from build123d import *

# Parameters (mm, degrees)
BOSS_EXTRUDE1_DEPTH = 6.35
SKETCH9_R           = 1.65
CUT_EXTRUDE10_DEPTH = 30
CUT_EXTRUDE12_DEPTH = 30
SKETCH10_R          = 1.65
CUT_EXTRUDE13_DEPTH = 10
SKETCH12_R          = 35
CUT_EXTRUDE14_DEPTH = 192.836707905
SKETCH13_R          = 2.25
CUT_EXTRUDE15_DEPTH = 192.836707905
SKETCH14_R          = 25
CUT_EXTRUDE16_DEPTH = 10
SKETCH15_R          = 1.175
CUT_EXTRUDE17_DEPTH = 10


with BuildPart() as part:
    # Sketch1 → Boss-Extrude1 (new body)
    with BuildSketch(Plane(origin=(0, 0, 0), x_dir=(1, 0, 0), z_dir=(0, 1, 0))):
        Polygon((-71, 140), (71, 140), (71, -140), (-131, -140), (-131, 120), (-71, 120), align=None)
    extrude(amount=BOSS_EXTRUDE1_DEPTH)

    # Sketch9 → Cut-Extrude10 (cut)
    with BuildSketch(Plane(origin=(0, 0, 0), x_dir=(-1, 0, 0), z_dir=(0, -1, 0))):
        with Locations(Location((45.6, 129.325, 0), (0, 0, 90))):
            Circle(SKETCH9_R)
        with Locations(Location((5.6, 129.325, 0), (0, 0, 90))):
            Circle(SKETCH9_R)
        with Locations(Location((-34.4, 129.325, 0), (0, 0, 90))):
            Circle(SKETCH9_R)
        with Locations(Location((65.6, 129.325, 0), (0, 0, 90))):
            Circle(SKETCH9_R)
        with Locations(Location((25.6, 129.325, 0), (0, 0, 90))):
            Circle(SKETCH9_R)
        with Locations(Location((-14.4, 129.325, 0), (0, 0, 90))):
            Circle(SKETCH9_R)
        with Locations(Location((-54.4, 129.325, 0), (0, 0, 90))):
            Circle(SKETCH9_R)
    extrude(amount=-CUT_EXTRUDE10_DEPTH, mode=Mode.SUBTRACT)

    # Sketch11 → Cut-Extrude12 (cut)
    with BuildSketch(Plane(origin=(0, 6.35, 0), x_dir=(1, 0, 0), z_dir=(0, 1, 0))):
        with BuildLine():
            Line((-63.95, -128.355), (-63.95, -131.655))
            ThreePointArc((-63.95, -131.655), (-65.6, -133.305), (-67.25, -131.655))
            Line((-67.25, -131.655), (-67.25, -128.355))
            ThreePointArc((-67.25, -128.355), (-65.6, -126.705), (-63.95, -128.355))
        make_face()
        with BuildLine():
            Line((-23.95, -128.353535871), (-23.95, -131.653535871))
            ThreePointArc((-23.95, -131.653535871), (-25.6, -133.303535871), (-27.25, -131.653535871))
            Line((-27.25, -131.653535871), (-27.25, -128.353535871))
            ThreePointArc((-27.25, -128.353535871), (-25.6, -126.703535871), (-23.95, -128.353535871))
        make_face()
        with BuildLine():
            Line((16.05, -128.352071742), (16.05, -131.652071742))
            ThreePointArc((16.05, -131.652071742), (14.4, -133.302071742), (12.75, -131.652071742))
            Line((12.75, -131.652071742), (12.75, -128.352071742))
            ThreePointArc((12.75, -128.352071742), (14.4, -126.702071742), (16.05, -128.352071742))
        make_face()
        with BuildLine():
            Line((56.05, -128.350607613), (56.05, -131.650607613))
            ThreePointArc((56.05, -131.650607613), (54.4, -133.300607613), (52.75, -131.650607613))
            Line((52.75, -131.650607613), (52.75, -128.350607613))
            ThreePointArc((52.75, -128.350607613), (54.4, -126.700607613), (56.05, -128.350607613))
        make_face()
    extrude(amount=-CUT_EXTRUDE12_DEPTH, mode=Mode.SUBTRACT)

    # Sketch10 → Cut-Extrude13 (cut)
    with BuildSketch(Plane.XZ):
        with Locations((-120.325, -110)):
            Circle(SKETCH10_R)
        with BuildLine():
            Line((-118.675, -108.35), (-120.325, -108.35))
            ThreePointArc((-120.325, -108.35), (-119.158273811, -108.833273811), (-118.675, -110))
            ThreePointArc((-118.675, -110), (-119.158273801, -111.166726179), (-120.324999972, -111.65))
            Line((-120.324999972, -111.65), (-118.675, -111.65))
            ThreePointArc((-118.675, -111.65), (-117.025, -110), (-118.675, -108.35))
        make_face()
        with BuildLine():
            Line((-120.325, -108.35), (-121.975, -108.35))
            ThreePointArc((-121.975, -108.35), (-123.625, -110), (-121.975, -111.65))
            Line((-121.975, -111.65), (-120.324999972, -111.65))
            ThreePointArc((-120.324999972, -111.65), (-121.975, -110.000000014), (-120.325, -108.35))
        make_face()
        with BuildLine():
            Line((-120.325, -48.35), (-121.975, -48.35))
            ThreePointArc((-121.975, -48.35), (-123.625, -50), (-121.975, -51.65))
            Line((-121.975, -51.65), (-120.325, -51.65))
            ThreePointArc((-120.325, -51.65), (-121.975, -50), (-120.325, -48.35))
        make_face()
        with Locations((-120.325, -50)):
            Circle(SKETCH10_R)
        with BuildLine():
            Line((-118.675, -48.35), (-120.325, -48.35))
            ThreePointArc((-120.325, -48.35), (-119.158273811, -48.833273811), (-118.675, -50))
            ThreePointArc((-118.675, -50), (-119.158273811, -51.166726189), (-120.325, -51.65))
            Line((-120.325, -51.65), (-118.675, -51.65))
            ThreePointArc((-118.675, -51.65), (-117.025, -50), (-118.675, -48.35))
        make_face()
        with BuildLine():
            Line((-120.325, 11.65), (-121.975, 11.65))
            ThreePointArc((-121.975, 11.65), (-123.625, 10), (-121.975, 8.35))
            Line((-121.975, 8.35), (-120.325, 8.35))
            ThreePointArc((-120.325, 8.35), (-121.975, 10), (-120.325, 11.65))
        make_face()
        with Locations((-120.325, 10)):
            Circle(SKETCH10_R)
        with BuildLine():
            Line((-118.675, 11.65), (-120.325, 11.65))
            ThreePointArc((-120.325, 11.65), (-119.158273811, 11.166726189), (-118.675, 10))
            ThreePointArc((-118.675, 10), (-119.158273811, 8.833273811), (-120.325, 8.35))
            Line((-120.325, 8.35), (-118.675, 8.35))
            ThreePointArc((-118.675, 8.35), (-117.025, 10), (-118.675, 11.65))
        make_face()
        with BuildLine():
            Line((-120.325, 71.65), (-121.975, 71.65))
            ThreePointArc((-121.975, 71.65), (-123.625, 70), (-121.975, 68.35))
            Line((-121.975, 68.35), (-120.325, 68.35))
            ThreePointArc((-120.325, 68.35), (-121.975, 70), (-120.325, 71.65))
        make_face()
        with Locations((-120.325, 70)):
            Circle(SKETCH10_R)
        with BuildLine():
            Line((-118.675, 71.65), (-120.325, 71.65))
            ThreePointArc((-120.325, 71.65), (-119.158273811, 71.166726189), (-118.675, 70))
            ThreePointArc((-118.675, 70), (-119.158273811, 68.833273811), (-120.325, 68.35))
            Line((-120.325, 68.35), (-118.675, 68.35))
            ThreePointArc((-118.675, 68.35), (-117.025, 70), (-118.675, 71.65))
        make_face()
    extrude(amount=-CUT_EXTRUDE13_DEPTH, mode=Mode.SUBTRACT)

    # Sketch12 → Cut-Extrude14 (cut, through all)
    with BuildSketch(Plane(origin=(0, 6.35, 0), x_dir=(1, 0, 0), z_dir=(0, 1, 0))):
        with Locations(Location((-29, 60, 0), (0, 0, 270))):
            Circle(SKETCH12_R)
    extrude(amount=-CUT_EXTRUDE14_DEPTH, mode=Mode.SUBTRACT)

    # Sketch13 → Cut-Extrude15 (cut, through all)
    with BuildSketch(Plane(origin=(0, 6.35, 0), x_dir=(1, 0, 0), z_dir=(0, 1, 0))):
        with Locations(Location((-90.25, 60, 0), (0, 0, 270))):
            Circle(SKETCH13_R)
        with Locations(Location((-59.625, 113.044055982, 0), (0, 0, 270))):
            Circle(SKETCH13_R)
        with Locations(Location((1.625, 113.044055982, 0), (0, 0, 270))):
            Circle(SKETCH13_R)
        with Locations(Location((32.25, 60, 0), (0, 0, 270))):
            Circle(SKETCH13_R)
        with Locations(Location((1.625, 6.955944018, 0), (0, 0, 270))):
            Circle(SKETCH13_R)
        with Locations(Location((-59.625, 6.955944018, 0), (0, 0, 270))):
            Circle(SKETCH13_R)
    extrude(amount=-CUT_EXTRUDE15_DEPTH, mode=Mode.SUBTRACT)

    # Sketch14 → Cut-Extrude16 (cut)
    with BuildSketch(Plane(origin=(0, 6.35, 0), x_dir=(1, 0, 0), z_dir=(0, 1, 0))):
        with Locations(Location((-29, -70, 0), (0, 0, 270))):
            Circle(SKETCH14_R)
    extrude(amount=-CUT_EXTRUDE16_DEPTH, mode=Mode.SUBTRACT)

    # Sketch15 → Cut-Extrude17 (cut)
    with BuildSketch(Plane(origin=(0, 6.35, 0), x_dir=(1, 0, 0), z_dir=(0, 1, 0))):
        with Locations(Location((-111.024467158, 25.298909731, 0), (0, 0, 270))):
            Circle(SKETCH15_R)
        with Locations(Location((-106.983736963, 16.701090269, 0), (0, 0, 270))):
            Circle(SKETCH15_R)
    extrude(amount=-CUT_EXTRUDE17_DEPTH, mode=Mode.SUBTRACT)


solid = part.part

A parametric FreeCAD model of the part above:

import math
import FreeCAD as App
import Part
import Sketcher
from FreeCAD import Vector


def add_polygon(sketch, points):
    """Adds a closed chain of lines whose ends are joined by coincident constraints."""
    first, n = sketch.GeometryCount, len(points)
    for a, b in zip(points, points[1:] + points[:1]):
        sketch.addGeometry(Part.LineSegment(App.Vector(*a, 0), App.Vector(*b, 0)), False)
    for i in range(n):
        sketch.addConstraint(Sketcher.Constraint("Coincident", first + i, 2, first + (i + 1) % n, 1))

doc = App.newDocument("Part")
params = doc.addObject("Spreadsheet::Sheet", "Params")
for row, (alias, value) in enumerate([
    ("sketch1_width", "142 mm"),
    ("sketch1_width2", "60 mm"),
    ("sketch1_height", "20 mm"),
    ("sketch1_height2", "260 mm"),
    ("pad1_length", "6.35 mm"),
    ("sketch2_diameter", "3.3 mm"),
    ("pocket1_length", "30 mm"),
    ("sketch3_radius", "1.65 mm"),
    ("sketch3_height", "3.3 mm"),
    ("pocket2_length", "30 mm"),
    ("sketch4_radius", "1.65 mm"),
    ("sketch4_width", "3.3 mm"),
    ("pocket3_length", "10 mm"),
    ("sketch5_diameter", "70 mm"),
    ("sketch6_diameter", "4.5 mm"),
    ("sketch7_diameter", "50 mm"),
    ("pocket6_length", "10 mm"),
    ("sketch8_diameter", "2.35 mm"),
    ("pocket7_length", "10 mm"),
], start=1):
    params.set(f"A{row}", alias)
    params.set(f"B{row}", "=" + value)
    params.setAlias(f"B{row}", alias)

body = doc.addObject("PartDesign::Body", "Body")

# Sketch on XZ plane
sketch1 = body.newObject("Sketcher::SketchObject", "Sketch")
sketch1.AttachmentSupport = (doc.getObject("XZ_Plane"), [""])
sketch1.MapMode = "FlatFace"
add_polygon(sketch1, [(71, -140), (-71, -140), (-71, -120), (-131, -120), (-131, 140), (71, 140)])  # lines 0-5
sketch1.addConstraint([
    Sketcher.Constraint("Horizontal", 0),
    Sketcher.Constraint("Vertical", 1),
    Sketcher.Constraint("Horizontal", 2),
    Sketcher.Constraint("Vertical", 3),
    Sketcher.Constraint("Horizontal", 4),
    Sketcher.Constraint("Vertical", 5),
    Sketcher.Constraint("Symmetric", 0, 2, 4, 2, -1, 1),
    Sketcher.Constraint("DistanceX", 0, 2, 0, 1, 142.0),
    Sketcher.Constraint("DistanceX", 2, 2, 2, 1, 60.0),
    Sketcher.Constraint("DistanceY", 1, 1, 1, 2, 20.0),
    Sketcher.Constraint("DistanceY", 3, 1, 3, 2, 260.0),
])
sketch1.setExpression("Constraints[13]", "Params.sketch1_width")
sketch1.setExpression("Constraints[14]", "Params.sketch1_width2")
sketch1.setExpression("Constraints[15]", "Params.sketch1_height")
sketch1.setExpression("Constraints[16]", "Params.sketch1_height2")
pad1 = body.newObject("PartDesign::Pad", "Pad")
pad1.Profile = sketch1
pad1.setExpression("Length", "Params.pad1_length")
pad1.Reversed = True

# Sketch on XZ plane
sketch2 = body.newObject("Sketcher::SketchObject", "Sketch001")
sketch2.AttachmentSupport = (doc.getObject("XZ_Plane"), [""])
sketch2.MapMode = "FlatFace"
sketch2.addGeometry([
    Part.Circle(Vector(-45.6, -129.3, 0), Vector(0, 0, 1), 1.6),  # 0
    Part.Circle(Vector(-5.6, -129.3, 0), Vector(0, 0, 1), 1.6),  # 1
    Part.Circle(Vector(34.4, -129.3, 0), Vector(0, 0, 1), 1.6),  # 2
    Part.Circle(Vector(-65.6, -129.3, 0), Vector(0, 0, 1), 1.6),  # 3
    Part.Circle(Vector(-25.6, -129.3, 0), Vector(0, 0, 1), 1.6),  # 4
    Part.Circle(Vector(14.4, -129.3, 0), Vector(0, 0, 1), 1.6),  # 5
    Part.Circle(Vector(54.4, -129.3, 0), Vector(0, 0, 1), 1.6),  # 6
], False)
sketch2.addConstraint([
    Sketcher.Constraint("Equal", 0, 1),
    Sketcher.Constraint("Equal", 1, 2),
    Sketcher.Constraint("Equal", 2, 3),
    Sketcher.Constraint("Equal", 3, 4),
    Sketcher.Constraint("Equal", 4, 5),
    Sketcher.Constraint("Equal", 5, 6),
    Sketcher.Constraint("Horizontal", 0, 3, 1, 3),
    Sketcher.Constraint("Horizontal", 1, 3, 2, 3),
    Sketcher.Constraint("Horizontal", 2, 3, 3, 3),
    Sketcher.Constraint("Horizontal", 3, 3, 4, 3),
    Sketcher.Constraint("Horizontal", 4, 3, 5, 3),
    Sketcher.Constraint("Horizontal", 5, 3, 6, 3),
    Sketcher.Constraint("Diameter", 0, 3.3),
    Sketcher.Constraint("DistanceX", 0, 3, 1, 3, 40.0),
    Sketcher.Constraint("DistanceX", 1, 3, 2, 3, 40.0),
    Sketcher.Constraint("DistanceX", 3, 3, 0, 3, 20.0),
    Sketcher.Constraint("DistanceX", 0, 3, 4, 3, 20.0),
    Sketcher.Constraint("DistanceX", 1, 3, 5, 3, 20.0),
    Sketcher.Constraint("DistanceX", 2, 3, 6, 3, 20.0),
    Sketcher.Constraint("DistanceX", 0, 3, -1, 1, 45.6),
    Sketcher.Constraint("DistanceY", 0, 3, -1, 1, 129.325),
])
sketch2.setExpression("Constraints[12]", "Params.sketch2_diameter")
pocket1 = body.newObject("PartDesign::Pocket", "Pocket")
pocket1.Profile = sketch2
pocket1.setExpression("Length", "Params.pocket1_length")

# Sketch on XZ plane
sketch3 = body.newObject("Sketcher::SketchObject", "Sketch002")
sketch3.AttachmentSupport = (doc.getObject("XZ_Plane"), [""])
sketch3.MapMode = "FlatFace"
sketch3.AttachmentOffset = App.Placement(Vector(0, 0, -6.35), App.Rotation())
sketch3.addGeometry([
    Part.LineSegment(Vector(-64, 131.7, 0), Vector(-64, 128.4, 0)),  # 0
    Part.ArcOfCircle(Part.Circle(Vector(-65.6, 128.4, 0), Vector(0, 0, 1), 1.6), math.radians(180), math.radians(360)),  # 1
    Part.LineSegment(Vector(-67.2, 128.4, 0), Vector(-67.2, 131.7, 0)),  # 2
    Part.ArcOfCircle(Part.Circle(Vector(-65.6, 131.7, 0), Vector(0, 0, 1), 1.6), math.radians(0), math.radians(180)),  # 3
    Part.LineSegment(Vector(-23.9, 131.7, 0), Vector(-23.9, 128.4, 0)),  # 4
    Part.ArcOfCircle(Part.Circle(Vector(-25.6, 128.4, 0), Vector(0, 0, 1), 1.6), math.radians(180), math.radians(360)),  # 5
    Part.LineSegment(Vector(-27.2, 128.4, 0), Vector(-27.2, 131.7, 0)),  # 6
    Part.ArcOfCircle(Part.Circle(Vector(-25.6, 131.7, 0), Vector(0, 0, 1), 1.6), math.radians(0), math.radians(180)),  # 7
    Part.LineSegment(Vector(16.1, 131.7, 0), Vector(16.1, 128.4, 0)),  # 8
    Part.ArcOfCircle(Part.Circle(Vector(14.4, 128.4, 0), Vector(0, 0, 1), 1.6), math.radians(180), math.radians(360)),  # 9
    Part.LineSegment(Vector(12.8, 128.4, 0), Vector(12.8, 131.7, 0)),  # 10
    Part.ArcOfCircle(Part.Circle(Vector(14.4, 131.7, 0), Vector(0, 0, 1), 1.6), math.radians(0), math.radians(180)),  # 11
    Part.LineSegment(Vector(56, 131.7, 0), Vector(56, 128.4, 0)),  # 12
    Part.ArcOfCircle(Part.Circle(Vector(54.4, 128.4, 0), Vector(0, 0, 1), 1.6), math.radians(180), math.radians(360)),  # 13
    Part.LineSegment(Vector(52.8, 128.4, 0), Vector(52.8, 131.7, 0)),  # 14
    Part.ArcOfCircle(Part.Circle(Vector(54.4, 131.7, 0), Vector(0, 0, 1), 1.6), math.radians(0), math.radians(180)),  # 15
], False)
sketch3.addConstraint([
    Sketcher.Constraint("Tangent", 0, 2, 1, 2),
    Sketcher.Constraint("Tangent", 1, 1, 2, 1),
    Sketcher.Constraint("Tangent", 2, 2, 3, 2),
    Sketcher.Constraint("Tangent", 3, 1, 0, 1),
    Sketcher.Constraint("Tangent", 4, 2, 5, 2),
    Sketcher.Constraint("Tangent", 5, 1, 6, 1),
    Sketcher.Constraint("Tangent", 6, 2, 7, 2),
    Sketcher.Constraint("Tangent", 7, 1, 4, 1),
    Sketcher.Constraint("Tangent", 8, 2, 9, 2),
    Sketcher.Constraint("Tangent", 9, 1, 10, 1),
    Sketcher.Constraint("Tangent", 10, 2, 11, 2),
    Sketcher.Constraint("Tangent", 11, 1, 8, 1),
    Sketcher.Constraint("Tangent", 12, 2, 13, 2),
    Sketcher.Constraint("Tangent", 13, 1, 14, 1),
    Sketcher.Constraint("Tangent", 14, 2, 15, 2),
    Sketcher.Constraint("Tangent", 15, 1, 12, 1),
    Sketcher.Constraint("Vertical", 0),
    Sketcher.Constraint("Vertical", 2),
    Sketcher.Constraint("Vertical", 4),
    Sketcher.Constraint("Vertical", 6),
    Sketcher.Constraint("Vertical", 8),
    Sketcher.Constraint("Vertical", 10),
    Sketcher.Constraint("Vertical", 12),
    Sketcher.Constraint("Vertical", 14),
    Sketcher.Constraint("Equal", 3, 5),
    Sketcher.Constraint("Equal", 7, 9),
    Sketcher.Constraint("Equal", 11, 13),
    Sketcher.Constraint("Equal", 2, 4),
    Sketcher.Constraint("Equal", 6, 8),
    Sketcher.Constraint("Equal", 10, 12),
    Sketcher.Constraint("Radius", 1, 1.65),
    Sketcher.Constraint("DistanceY", 0, 2, 0, 1, 3.3),
    Sketcher.Constraint("DistanceX", 1, 3, 5, 3, 40.0),
    Sketcher.Constraint("DistanceX", 5, 3, 9, 3, 40.0),
    Sketcher.Constraint("DistanceX", 9, 3, 13, 3, 40.0),
    Sketcher.Constraint("DistanceX", 1, 3, -1, 1, 65.6),
    Sketcher.Constraint("DistanceY", -1, 1, 1, 3, 128.355),
    Sketcher.Constraint("DistanceY", -1, 1, 9, 3, 128.352072),
    Sketcher.Constraint("DistanceY", 13, 3, 5, 3, 0.002928),
    Sketcher.Constraint("DistanceY", -1, 1, 5, 3, 128.353536),
])
sketch3.setExpression("Constraints[30]", "Params.sketch3_radius")
sketch3.setExpression("Constraints[31]", "Params.sketch3_height")
pocket2 = body.newObject("PartDesign::Pocket", "Pocket001")
pocket2.Profile = sketch3
pocket2.setExpression("Length", "Params.pocket2_length")
pocket2.Reversed = True

# Sketch on XZ plane
sketch4 = body.newObject("Sketcher::SketchObject", "Sketch003")
sketch4.AttachmentSupport = (doc.getObject("XZ_Plane"), [""])
sketch4.MapMode = "FlatFace"
sketch4.addGeometry([
    Part.ArcOfCircle(Part.Circle(Vector(-118.7, -110, 0), Vector(0, 0, 1), 1.6), math.radians(-90), math.radians(90)),  # 0
    Part.LineSegment(Vector(-118.7, -108.3, 0), Vector(-122, -108.3, 0)),  # 1
    Part.ArcOfCircle(Part.Circle(Vector(-122, -110, 0), Vector(0, 0, 1), 1.6), math.radians(90), math.radians(270)),  # 2
    Part.LineSegment(Vector(-122, -111.7, 0), Vector(-118.7, -111.7, 0)),  # 3
    Part.ArcOfCircle(Part.Circle(Vector(-122, -50, 0), Vector(0, 0, 1), 1.6), math.radians(90), math.radians(270)),  # 4
    Part.LineSegment(Vector(-122, -51.6, 0), Vector(-118.7, -51.6, 0)),  # 5
    Part.ArcOfCircle(Part.Circle(Vector(-118.7, -50, 0), Vector(0, 0, 1), 1.6), math.radians(-90), math.radians(90)),  # 6
    Part.LineSegment(Vector(-118.7, -48.4, 0), Vector(-122, -48.4, 0)),  # 7
    Part.ArcOfCircle(Part.Circle(Vector(-122, 10, 0), Vector(0, 0, 1), 1.6), math.radians(90), math.radians(270)),  # 8
    Part.LineSegment(Vector(-122, 8.3, 0), Vector(-118.7, 8.3, 0)),  # 9
    Part.ArcOfCircle(Part.Circle(Vector(-118.7, 10, 0), Vector(0, 0, 1), 1.6), math.radians(-90), math.radians(90)),  # 10
    Part.LineSegment(Vector(-118.7, 11.7, 0), Vector(-122, 11.7, 0)),  # 11
    Part.ArcOfCircle(Part.Circle(Vector(-122, 70, 0), Vector(0, 0, 1), 1.6), math.radians(90), math.radians(270)),  # 12
    Part.LineSegment(Vector(-122, 68.3, 0), Vector(-118.7, 68.3, 0)),  # 13
    Part.ArcOfCircle(Part.Circle(Vector(-118.7, 70, 0), Vector(0, 0, 1), 1.6), math.radians(-90), math.radians(90)),  # 14
    Part.LineSegment(Vector(-118.7, 71.7, 0), Vector(-122, 71.7, 0)),  # 15
], False)
sketch4.addConstraint([
    Sketcher.Constraint("Tangent", 0, 2, 1, 1),
    Sketcher.Constraint("Tangent", 1, 2, 2, 1),
    Sketcher.Constraint("Tangent", 2, 2, 3, 1),
    Sketcher.Constraint("Tangent", 3, 2, 0, 1),
    Sketcher.Constraint("Tangent", 4, 2, 5, 1),
    Sketcher.Constraint("Tangent", 5, 2, 6, 1),
    Sketcher.Constraint("Tangent", 6, 2, 7, 1),
    Sketcher.Constraint("Tangent", 7, 2, 4, 1),
    Sketcher.Constraint("Tangent", 8, 2, 9, 1),
    Sketcher.Constraint("Tangent", 9, 2, 10, 1),
    Sketcher.Constraint("Tangent", 10, 2, 11, 1),
    Sketcher.Constraint("Tangent", 11, 2, 8, 1),
    Sketcher.Constraint("Tangent", 12, 2, 13, 1),
    Sketcher.Constraint("Tangent", 13, 2, 14, 1),
    Sketcher.Constraint("Tangent", 14, 2, 15, 1),
    Sketcher.Constraint("Tangent", 15, 2, 12, 1),
    Sketcher.Constraint("Horizontal", 1),
    Sketcher.Constraint("Horizontal", 3),
    Sketcher.Constraint("Horizontal", 5),
    Sketcher.Constraint("Horizontal", 7),
    Sketcher.Constraint("Horizontal", 9),
    Sketcher.Constraint("Horizontal", 11),
    Sketcher.Constraint("Horizontal", 13),
    Sketcher.Constraint("Horizontal", 15),
    Sketcher.Constraint("Equal", 2, 4),
    Sketcher.Constraint("Equal", 6, 8),
    Sketcher.Constraint("Equal", 10, 12),
    Sketcher.Constraint("Vertical", 2, 3, 4, 3),
    Sketcher.Constraint("Vertical", 0, 3, 6, 3),
    Sketcher.Constraint("Vertical", 4, 3, 8, 3),
    Sketcher.Constraint("Vertical", 6, 3, 10, 3),
    Sketcher.Constraint("Vertical", 8, 3, 12, 3),
    Sketcher.Constraint("Vertical", 10, 3, 14, 3),
    Sketcher.Constraint("Radius", 0, 1.65),
    Sketcher.Constraint("DistanceX", 1, 2, 1, 1, 3.3),
    Sketcher.Constraint("DistanceY", 0, 3, -1, 1, 110.0),
    Sketcher.Constraint("DistanceY", 4, 3, -1, 1, 50.0),
    Sketcher.Constraint("DistanceY", -1, 1, 8, 3, 10.0),
    Sketcher.Constraint("DistanceY", -1, 1, 12, 3, 70.0),
    Sketcher.Constraint("DistanceX", 0, 3, -1, 1, 118.675),
])
sketch4.setExpression("Constraints[33]", "Params.sketch4_radius")
sketch4.setExpression("Constraints[34]", "Params.sketch4_width")
pocket3 = body.newObject("PartDesign::Pocket", "Pocket002")
pocket3.Profile = sketch4
pocket3.setExpression("Length", "Params.pocket3_length")

# Sketch on XZ plane
sketch5 = body.newObject("Sketcher::SketchObject", "Sketch004")
sketch5.AttachmentSupport = (doc.getObject("XZ_Plane"), [""])
sketch5.MapMode = "FlatFace"
sketch5.AttachmentOffset = App.Placement(Vector(0, 0, -6.35), App.Rotation())
sketch5.addGeometry(Part.Circle(Vector(-29, -60, 0), Vector(0, 0, 1), 35), False)
sketch5.addConstraint([
    Sketcher.Constraint("Diameter", 0, 70.0),
    Sketcher.Constraint("DistanceX", 0, 3, -1, 1, 29.0),
    Sketcher.Constraint("DistanceY", 0, 3, -1, 1, 60.0),
])
sketch5.setExpression("Constraints[0]", "Params.sketch5_diameter")
pocket4 = body.newObject("PartDesign::Pocket", "Pocket003")
pocket4.Profile = sketch5
pocket4.Type = "ThroughAll"
pocket4.Reversed = True

# Sketch on XZ plane
sketch6 = body.newObject("Sketcher::SketchObject", "Sketch005")
sketch6.AttachmentSupport = (doc.getObject("XZ_Plane"), [""])
sketch6.MapMode = "FlatFace"
sketch6.AttachmentOffset = App.Placement(Vector(0, 0, -6.35), App.Rotation())
sketch6.addGeometry([
    Part.Circle(Vector(-90.2, -60, 0), Vector(0, 0, 1), 2.2),  # 0
    Part.Circle(Vector(-59.6, -113, 0), Vector(0, 0, 1), 2.2),  # 1
    Part.Circle(Vector(1.6, -113, 0), Vector(0, 0, 1), 2.2),  # 2
    Part.Circle(Vector(32.2, -60, 0), Vector(0, 0, 1), 2.2),  # 3
    Part.Circle(Vector(1.6, -7, 0), Vector(0, 0, 1), 2.2),  # 4
    Part.Circle(Vector(-59.6, -7, 0), Vector(0, 0, 1), 2.2),  # 5
], False)
sketch6.addConstraint([
    Sketcher.Constraint("Equal", 0, 1),
    Sketcher.Constraint("Equal", 1, 2),
    Sketcher.Constraint("Equal", 2, 3),
    Sketcher.Constraint("Equal", 3, 4),
    Sketcher.Constraint("Equal", 4, 5),
    Sketcher.Constraint("Horizontal", 1, 3, 2, 3),
    Sketcher.Constraint("Horizontal", 0, 3, 3, 3),
    Sketcher.Constraint("Horizontal", 4, 3, 5, 3),
    Sketcher.Constraint("Vertical", 2, 3, 4, 3),
    Sketcher.Constraint("Vertical", 1, 3, 5, 3),
    Sketcher.Constraint("Diameter", 0, 4.5),
    Sketcher.Constraint("DistanceY", 0, 3, -1, 1, 60.0),
    Sketcher.Constraint("DistanceX", 0, 3, 3, 3, 122.5),
    Sketcher.Constraint("DistanceX", 0, 3, -1, 1, 90.25),
    Sketcher.Constraint("DistanceX", 1, 3, 2, 3, 61.25),
    Sketcher.Constraint("DistanceX", 1, 3, -1, 1, 59.625),
    Sketcher.Constraint("DistanceY", 2, 3, 4, 3, 106.088112),
    Sketcher.Constraint("DistanceY", 1, 3, -1, 1, 113.044056),
])
sketch6.setExpression("Constraints[10]", "Params.sketch6_diameter")
pocket5 = body.newObject("PartDesign::Pocket", "Pocket004")
pocket5.Profile = sketch6
pocket5.Type = "ThroughAll"
pocket5.Reversed = True

# Sketch on XZ plane
sketch7 = body.newObject("Sketcher::SketchObject", "Sketch006")
sketch7.AttachmentSupport = (doc.getObject("XZ_Plane"), [""])
sketch7.MapMode = "FlatFace"
sketch7.AttachmentOffset = App.Placement(Vector(0, 0, -6.35), App.Rotation())
sketch7.addGeometry(Part.Circle(Vector(-29, 70, 0), Vector(0, 0, 1), 25), False)
sketch7.addConstraint([
    Sketcher.Constraint("Diameter", 0, 50.0),
    Sketcher.Constraint("DistanceX", 0, 3, -1, 1, 29.0),
    Sketcher.Constraint("DistanceY", -1, 1, 0, 3, 70.0),
])
sketch7.setExpression("Constraints[0]", "Params.sketch7_diameter")
pocket6 = body.newObject("PartDesign::Pocket", "Pocket005")
pocket6.Profile = sketch7
pocket6.setExpression("Length", "Params.pocket6_length")
pocket6.Reversed = True

# Sketch on XZ plane
sketch8 = body.newObject("Sketcher::SketchObject", "Sketch007")
sketch8.AttachmentSupport = (doc.getObject("XZ_Plane"), [""])
sketch8.MapMode = "FlatFace"
sketch8.AttachmentOffset = App.Placement(Vector(0, 0, -6.35), App.Rotation())
sketch8.addGeometry([
    Part.Circle(Vector(-111, -25.3, 0), Vector(0, 0, 1), 1.2),
    Part.Circle(Vector(-107, -16.7, 0), Vector(0, 0, 1), 1.2),
], False)
sketch8.addConstraint([
    Sketcher.Constraint("Equal", 0, 1),
    Sketcher.Constraint("Diameter", 0, 2.35),
    Sketcher.Constraint("DistanceY", 0, 3, -1, 1, 25.29891),
    Sketcher.Constraint("DistanceY", 1, 3, -1, 1, 16.70109),
    Sketcher.Constraint("DistanceX", 0, 3, 1, 3, 4.04073),
    Sketcher.Constraint("DistanceX", 0, 3, -1, 1, 111.024467),
])
sketch8.setExpression("Constraints[1]", "Params.sketch8_diameter")
pocket7 = body.newObject("PartDesign::Pocket", "Pocket006")
pocket7.Profile = sketch8
pocket7.setExpression("Length", "Params.pocket7_length")
pocket7.Reversed = True

doc.recompute()
